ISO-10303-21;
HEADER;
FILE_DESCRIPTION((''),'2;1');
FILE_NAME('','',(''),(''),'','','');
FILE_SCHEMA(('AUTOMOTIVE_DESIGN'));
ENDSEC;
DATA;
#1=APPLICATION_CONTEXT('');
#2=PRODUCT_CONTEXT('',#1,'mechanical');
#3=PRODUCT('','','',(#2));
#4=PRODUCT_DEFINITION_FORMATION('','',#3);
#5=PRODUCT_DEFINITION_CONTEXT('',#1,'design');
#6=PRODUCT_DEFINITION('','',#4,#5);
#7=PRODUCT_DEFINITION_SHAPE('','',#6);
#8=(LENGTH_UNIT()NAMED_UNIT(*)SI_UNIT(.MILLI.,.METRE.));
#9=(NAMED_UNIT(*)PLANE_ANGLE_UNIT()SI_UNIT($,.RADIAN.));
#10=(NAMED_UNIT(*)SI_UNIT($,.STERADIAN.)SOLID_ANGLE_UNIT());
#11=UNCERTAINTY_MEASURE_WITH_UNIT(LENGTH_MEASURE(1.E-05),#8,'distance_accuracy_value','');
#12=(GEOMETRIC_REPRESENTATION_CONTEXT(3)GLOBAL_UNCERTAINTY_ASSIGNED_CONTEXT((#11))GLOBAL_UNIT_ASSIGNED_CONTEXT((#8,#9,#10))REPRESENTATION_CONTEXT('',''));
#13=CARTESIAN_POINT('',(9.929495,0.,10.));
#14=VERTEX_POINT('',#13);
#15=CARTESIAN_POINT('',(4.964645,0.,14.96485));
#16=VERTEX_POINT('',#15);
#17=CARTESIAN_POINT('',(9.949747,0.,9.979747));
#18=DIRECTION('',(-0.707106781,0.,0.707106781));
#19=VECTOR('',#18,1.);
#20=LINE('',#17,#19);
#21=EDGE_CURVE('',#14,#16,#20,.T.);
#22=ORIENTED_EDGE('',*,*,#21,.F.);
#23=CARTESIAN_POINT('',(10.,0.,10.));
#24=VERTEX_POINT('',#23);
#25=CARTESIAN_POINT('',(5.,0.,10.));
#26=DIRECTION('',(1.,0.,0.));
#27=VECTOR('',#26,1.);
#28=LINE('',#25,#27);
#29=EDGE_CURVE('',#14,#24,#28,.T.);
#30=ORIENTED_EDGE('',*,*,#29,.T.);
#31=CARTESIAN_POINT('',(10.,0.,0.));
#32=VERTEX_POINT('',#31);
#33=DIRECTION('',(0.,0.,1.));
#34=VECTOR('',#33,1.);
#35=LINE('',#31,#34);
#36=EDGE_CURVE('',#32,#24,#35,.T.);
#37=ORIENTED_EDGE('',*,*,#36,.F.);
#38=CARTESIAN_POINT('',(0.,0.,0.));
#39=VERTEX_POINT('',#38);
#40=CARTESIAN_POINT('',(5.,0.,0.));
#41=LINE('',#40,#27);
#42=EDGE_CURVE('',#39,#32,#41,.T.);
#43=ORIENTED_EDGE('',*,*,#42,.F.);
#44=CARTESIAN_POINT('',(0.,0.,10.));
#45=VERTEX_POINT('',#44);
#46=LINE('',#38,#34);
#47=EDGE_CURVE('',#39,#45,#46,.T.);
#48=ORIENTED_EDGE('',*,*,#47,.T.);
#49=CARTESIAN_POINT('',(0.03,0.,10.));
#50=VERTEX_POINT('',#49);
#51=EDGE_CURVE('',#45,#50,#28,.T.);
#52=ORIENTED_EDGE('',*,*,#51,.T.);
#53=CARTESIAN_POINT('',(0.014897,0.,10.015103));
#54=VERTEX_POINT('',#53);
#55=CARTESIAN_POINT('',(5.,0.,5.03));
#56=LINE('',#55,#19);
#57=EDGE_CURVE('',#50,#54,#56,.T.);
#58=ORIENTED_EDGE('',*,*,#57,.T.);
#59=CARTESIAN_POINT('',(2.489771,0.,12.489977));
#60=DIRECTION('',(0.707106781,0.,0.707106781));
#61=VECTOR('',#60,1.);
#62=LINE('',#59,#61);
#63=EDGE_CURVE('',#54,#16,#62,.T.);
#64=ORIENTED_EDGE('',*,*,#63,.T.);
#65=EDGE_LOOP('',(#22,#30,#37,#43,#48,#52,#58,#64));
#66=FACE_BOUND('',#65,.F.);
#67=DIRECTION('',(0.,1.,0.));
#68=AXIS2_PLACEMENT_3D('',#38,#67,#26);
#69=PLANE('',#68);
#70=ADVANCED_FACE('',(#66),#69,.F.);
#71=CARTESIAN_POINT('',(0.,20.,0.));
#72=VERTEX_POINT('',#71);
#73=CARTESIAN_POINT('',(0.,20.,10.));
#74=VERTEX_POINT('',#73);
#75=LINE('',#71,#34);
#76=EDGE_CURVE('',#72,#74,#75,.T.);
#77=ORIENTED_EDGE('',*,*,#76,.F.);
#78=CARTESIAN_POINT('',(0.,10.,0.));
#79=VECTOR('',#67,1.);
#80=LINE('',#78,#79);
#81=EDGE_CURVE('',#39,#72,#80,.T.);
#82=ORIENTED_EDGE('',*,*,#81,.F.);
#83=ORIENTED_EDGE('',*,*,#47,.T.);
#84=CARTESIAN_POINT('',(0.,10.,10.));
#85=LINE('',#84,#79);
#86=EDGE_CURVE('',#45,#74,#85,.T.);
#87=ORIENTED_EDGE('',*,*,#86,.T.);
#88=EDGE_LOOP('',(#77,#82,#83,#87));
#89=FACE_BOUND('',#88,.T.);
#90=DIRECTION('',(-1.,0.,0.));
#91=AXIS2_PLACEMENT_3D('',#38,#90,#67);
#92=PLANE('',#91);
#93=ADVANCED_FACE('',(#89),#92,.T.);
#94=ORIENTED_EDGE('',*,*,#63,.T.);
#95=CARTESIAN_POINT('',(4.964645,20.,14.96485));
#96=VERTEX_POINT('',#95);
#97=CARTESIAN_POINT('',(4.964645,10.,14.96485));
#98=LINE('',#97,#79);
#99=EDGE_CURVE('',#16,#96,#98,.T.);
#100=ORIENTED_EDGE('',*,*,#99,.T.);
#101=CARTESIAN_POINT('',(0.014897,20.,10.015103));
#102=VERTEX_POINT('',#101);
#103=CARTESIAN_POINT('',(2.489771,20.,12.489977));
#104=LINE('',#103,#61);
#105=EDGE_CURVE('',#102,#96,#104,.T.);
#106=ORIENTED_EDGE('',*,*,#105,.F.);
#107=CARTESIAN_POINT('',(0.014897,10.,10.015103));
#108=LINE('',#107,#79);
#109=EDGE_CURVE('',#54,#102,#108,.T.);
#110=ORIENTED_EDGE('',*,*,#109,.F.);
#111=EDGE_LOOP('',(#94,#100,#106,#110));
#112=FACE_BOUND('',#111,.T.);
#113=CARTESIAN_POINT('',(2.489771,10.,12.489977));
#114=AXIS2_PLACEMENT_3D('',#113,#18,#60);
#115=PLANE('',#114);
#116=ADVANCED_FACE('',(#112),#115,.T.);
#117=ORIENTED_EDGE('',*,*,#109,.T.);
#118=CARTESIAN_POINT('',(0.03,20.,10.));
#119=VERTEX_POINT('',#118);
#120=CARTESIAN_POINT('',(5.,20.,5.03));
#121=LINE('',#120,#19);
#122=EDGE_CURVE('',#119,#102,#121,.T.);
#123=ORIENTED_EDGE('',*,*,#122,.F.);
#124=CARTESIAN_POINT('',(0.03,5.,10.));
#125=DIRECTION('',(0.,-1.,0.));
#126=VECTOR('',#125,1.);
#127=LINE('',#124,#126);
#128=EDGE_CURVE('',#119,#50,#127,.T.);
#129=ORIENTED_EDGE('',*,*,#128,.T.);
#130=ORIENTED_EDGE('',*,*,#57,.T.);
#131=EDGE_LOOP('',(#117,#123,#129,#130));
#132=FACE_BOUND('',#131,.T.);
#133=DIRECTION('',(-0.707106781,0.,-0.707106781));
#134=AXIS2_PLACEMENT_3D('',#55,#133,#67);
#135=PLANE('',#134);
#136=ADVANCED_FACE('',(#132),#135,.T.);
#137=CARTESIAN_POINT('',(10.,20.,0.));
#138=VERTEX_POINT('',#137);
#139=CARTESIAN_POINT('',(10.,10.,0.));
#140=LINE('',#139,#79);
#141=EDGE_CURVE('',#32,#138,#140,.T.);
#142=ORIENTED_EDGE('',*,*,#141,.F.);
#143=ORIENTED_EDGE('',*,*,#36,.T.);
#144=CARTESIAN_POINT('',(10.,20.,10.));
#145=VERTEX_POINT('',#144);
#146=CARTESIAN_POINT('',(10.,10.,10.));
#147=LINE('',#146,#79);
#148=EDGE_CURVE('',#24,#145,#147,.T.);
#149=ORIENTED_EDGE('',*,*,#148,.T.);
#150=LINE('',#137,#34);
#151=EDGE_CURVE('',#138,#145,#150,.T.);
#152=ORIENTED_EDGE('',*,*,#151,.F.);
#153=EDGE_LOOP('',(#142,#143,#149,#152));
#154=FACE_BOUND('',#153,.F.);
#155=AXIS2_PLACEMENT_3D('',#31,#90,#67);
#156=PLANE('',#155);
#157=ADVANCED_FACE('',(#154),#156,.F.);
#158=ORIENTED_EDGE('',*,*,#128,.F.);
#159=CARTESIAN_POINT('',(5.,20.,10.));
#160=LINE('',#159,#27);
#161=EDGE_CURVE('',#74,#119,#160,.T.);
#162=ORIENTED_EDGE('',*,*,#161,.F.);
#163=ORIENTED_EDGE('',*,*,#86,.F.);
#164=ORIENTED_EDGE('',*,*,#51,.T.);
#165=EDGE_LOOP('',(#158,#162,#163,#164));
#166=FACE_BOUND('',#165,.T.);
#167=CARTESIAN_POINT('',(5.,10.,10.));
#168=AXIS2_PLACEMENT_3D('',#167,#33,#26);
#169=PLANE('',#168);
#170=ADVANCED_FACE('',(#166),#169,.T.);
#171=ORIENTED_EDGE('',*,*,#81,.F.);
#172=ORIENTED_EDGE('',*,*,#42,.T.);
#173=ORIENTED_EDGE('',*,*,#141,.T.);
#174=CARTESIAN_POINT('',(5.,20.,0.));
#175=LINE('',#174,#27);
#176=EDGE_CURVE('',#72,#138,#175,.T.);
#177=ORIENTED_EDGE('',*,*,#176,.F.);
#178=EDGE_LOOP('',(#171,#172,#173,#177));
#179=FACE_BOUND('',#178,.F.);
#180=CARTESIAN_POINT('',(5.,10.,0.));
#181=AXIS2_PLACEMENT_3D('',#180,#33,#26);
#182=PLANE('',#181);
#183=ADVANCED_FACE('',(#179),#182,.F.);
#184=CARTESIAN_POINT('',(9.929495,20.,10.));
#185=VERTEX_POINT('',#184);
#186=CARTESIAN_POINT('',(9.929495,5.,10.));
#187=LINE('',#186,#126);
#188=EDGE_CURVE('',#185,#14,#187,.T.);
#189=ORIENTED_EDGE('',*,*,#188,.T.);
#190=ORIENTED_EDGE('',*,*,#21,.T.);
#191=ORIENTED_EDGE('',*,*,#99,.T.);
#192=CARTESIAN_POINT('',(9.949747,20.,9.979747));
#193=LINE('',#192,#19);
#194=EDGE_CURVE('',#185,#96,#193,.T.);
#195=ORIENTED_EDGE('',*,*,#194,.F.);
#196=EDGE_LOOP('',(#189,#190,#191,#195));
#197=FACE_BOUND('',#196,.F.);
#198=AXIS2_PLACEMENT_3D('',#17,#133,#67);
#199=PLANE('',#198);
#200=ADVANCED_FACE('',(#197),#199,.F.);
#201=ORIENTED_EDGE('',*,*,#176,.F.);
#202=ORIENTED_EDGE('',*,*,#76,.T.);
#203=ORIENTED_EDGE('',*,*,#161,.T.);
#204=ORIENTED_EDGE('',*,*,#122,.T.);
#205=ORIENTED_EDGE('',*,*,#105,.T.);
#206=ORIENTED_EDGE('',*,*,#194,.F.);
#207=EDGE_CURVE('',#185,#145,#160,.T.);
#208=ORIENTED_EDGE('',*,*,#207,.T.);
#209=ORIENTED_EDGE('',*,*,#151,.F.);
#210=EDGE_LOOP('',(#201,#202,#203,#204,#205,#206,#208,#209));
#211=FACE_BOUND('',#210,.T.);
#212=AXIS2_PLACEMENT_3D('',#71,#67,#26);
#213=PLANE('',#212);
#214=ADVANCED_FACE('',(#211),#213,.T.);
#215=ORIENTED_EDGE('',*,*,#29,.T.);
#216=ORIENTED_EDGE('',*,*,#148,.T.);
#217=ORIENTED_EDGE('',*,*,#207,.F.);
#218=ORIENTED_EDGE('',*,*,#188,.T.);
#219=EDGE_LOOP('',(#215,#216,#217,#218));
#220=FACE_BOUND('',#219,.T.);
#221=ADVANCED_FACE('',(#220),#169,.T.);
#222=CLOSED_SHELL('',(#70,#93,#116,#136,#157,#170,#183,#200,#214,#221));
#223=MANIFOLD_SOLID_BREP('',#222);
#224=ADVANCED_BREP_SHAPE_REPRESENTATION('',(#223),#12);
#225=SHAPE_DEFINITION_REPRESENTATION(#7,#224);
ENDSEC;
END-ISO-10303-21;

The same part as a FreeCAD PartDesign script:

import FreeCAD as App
import Part
import Sketcher
Q = App.Units.Quantity

doc = App.newDocument("Part")
body = doc.addObject("PartDesign::Body", "Body")

# Sketch on XY plane
sketch1 = doc.addObject("Sketcher::SketchObject", "Sketch")
body.addObject(sketch1)
sketch1.AttachmentSupport = (doc.XY_Plane, [""])
sketch1.MapMode = "FlatFace"
sketch1.addGeometry(Part.LineSegment(App.Vector(0, 20, 0), App.Vector(0, 0, 0)), False)
sketch1.addGeometry(Part.LineSegment(App.Vector(0, 0, 0), App.Vector(7, 0, 0)), False)
sketch1.addGeometry(Part.LineSegment(App.Vector(7, 0, 0), App.Vector(7, 20, 0)), False)
sketch1.addGeometry(Part.LineSegment(App.Vector(7, 20, 0), App.Vector(0, 20, 0)), False)
sketch1.addConstraint(Sketcher.Constraint("Coincident", 0, 2, 1, 1))
sketch1.addConstraint(Sketcher.Constraint("Coincident", 1, 2, 2, 1))
sketch1.addConstraint(Sketcher.Constraint("Coincident", 2, 2, 3, 1))
sketch1.addConstraint(Sketcher.Constraint("Coincident", 3, 2, 0, 1))
sketch1.addConstraint(Sketcher.Constraint("Vertical", 0))
sketch1.addConstraint(Sketcher.Constraint("Horizontal", 1))
sketch1.addConstraint(Sketcher.Constraint("Vertical", 2))
sketch1.addConstraint(Sketcher.Constraint("Horizontal", 3))
sketch1.addConstraint(Sketcher.Constraint("Coincident", 0, 2, -1, 1))
sketch1.addConstraint(Sketcher.Constraint("DistanceX", 1, 1, 1, 2, Q("7 mm")))
sketch1.addConstraint(Sketcher.Constraint("DistanceY", 0, 2, 0, 1, Q("20 mm")))
pad1 = doc.addObject("PartDesign::Pad", "Pad")
body.addObject(pad1)
pad1.Profile = sketch1
pad1.Length = 7.05
body2 = doc.addObject("PartDesign::Body", "Body001")
doc.recompute()

body.Placement = App.Placement(App.Vector(5, 0, 5.03), App.Rotation(App.Vector(0, -1, 0), 45))
boolean = doc.addObject("PartDesign::Boolean", "Boolean")
body2.addObject(boolean)
boolean.Type = "Fuse"
boolean.addObjects([body])
body3 = doc.addObject("PartDesign::Body", "Body002")

# Sketch on XY plane
sketch2 = doc.addObject("Sketcher::SketchObject", "Sketch001")
body3.addObject(sketch2)
sketch2.AttachmentSupport = (doc.getObject("XY_Plane002"), [""])
sketch2.MapMode = "FlatFace"
sketch2.addGeometry(Part.LineSegment(App.Vector(0, 20, 0), App.Vector(0, 0, 0)), False)
sketch2.addGeometry(Part.LineSegment(App.Vector(0, 0, 0), App.Vector(10, 0, 0)), False)
sketch2.addGeometry(Part.LineSegment(App.Vector(10, 0, 0), App.Vector(10, 20, 0)), False)
sketch2.addGeometry(Part.LineSegment(App.Vector(10, 20, 0), App.Vector(0, 20, 0)), False)
sketch2.addConstraint(Sketcher.Constraint("Coincident", 0, 2, 1, 1))
sketch2.addConstraint(Sketcher.Constraint("Coincident", 1, 2, 2, 1))
sketch2.addConstraint(Sketcher.Constraint("Coincident", 2, 2, 3, 1))
sketch2.addConstraint(Sketcher.Constraint("Coincident", 3, 2, 0, 1))
sketch2.addConstraint(Sketcher.Constraint("Vertical", 0))
sketch2.addConstraint(Sketcher.Constraint("Horizontal", 1))
sketch2.addConstraint(Sketcher.Constraint("Vertical", 2))
sketch2.addConstraint(Sketcher.Constraint("Horizontal", 3))
sketch2.addConstraint(Sketcher.Constraint("Coincident", 0, 2, -1, 1))
sketch2.addConstraint(Sketcher.Constraint("DistanceX", 1, 1, 1, 2, Q("10 mm")))
sketch2.addConstraint(Sketcher.Constraint("DistanceY", 0, 2, 0, 1, Q("20 mm")))
pad2 = doc.addObject("PartDesign::Pad", "Pad001")
body3.addObject(pad2)
pad2.Profile = sketch2
pad2.Length = 10
doc.recompute()

boolean2 = doc.addObject("PartDesign::Boolean", "Boolean001")
body3.addObject(boolean2)
boolean2.Type = "Fuse"
boolean2.addObjects([body2])

doc.recompute()
